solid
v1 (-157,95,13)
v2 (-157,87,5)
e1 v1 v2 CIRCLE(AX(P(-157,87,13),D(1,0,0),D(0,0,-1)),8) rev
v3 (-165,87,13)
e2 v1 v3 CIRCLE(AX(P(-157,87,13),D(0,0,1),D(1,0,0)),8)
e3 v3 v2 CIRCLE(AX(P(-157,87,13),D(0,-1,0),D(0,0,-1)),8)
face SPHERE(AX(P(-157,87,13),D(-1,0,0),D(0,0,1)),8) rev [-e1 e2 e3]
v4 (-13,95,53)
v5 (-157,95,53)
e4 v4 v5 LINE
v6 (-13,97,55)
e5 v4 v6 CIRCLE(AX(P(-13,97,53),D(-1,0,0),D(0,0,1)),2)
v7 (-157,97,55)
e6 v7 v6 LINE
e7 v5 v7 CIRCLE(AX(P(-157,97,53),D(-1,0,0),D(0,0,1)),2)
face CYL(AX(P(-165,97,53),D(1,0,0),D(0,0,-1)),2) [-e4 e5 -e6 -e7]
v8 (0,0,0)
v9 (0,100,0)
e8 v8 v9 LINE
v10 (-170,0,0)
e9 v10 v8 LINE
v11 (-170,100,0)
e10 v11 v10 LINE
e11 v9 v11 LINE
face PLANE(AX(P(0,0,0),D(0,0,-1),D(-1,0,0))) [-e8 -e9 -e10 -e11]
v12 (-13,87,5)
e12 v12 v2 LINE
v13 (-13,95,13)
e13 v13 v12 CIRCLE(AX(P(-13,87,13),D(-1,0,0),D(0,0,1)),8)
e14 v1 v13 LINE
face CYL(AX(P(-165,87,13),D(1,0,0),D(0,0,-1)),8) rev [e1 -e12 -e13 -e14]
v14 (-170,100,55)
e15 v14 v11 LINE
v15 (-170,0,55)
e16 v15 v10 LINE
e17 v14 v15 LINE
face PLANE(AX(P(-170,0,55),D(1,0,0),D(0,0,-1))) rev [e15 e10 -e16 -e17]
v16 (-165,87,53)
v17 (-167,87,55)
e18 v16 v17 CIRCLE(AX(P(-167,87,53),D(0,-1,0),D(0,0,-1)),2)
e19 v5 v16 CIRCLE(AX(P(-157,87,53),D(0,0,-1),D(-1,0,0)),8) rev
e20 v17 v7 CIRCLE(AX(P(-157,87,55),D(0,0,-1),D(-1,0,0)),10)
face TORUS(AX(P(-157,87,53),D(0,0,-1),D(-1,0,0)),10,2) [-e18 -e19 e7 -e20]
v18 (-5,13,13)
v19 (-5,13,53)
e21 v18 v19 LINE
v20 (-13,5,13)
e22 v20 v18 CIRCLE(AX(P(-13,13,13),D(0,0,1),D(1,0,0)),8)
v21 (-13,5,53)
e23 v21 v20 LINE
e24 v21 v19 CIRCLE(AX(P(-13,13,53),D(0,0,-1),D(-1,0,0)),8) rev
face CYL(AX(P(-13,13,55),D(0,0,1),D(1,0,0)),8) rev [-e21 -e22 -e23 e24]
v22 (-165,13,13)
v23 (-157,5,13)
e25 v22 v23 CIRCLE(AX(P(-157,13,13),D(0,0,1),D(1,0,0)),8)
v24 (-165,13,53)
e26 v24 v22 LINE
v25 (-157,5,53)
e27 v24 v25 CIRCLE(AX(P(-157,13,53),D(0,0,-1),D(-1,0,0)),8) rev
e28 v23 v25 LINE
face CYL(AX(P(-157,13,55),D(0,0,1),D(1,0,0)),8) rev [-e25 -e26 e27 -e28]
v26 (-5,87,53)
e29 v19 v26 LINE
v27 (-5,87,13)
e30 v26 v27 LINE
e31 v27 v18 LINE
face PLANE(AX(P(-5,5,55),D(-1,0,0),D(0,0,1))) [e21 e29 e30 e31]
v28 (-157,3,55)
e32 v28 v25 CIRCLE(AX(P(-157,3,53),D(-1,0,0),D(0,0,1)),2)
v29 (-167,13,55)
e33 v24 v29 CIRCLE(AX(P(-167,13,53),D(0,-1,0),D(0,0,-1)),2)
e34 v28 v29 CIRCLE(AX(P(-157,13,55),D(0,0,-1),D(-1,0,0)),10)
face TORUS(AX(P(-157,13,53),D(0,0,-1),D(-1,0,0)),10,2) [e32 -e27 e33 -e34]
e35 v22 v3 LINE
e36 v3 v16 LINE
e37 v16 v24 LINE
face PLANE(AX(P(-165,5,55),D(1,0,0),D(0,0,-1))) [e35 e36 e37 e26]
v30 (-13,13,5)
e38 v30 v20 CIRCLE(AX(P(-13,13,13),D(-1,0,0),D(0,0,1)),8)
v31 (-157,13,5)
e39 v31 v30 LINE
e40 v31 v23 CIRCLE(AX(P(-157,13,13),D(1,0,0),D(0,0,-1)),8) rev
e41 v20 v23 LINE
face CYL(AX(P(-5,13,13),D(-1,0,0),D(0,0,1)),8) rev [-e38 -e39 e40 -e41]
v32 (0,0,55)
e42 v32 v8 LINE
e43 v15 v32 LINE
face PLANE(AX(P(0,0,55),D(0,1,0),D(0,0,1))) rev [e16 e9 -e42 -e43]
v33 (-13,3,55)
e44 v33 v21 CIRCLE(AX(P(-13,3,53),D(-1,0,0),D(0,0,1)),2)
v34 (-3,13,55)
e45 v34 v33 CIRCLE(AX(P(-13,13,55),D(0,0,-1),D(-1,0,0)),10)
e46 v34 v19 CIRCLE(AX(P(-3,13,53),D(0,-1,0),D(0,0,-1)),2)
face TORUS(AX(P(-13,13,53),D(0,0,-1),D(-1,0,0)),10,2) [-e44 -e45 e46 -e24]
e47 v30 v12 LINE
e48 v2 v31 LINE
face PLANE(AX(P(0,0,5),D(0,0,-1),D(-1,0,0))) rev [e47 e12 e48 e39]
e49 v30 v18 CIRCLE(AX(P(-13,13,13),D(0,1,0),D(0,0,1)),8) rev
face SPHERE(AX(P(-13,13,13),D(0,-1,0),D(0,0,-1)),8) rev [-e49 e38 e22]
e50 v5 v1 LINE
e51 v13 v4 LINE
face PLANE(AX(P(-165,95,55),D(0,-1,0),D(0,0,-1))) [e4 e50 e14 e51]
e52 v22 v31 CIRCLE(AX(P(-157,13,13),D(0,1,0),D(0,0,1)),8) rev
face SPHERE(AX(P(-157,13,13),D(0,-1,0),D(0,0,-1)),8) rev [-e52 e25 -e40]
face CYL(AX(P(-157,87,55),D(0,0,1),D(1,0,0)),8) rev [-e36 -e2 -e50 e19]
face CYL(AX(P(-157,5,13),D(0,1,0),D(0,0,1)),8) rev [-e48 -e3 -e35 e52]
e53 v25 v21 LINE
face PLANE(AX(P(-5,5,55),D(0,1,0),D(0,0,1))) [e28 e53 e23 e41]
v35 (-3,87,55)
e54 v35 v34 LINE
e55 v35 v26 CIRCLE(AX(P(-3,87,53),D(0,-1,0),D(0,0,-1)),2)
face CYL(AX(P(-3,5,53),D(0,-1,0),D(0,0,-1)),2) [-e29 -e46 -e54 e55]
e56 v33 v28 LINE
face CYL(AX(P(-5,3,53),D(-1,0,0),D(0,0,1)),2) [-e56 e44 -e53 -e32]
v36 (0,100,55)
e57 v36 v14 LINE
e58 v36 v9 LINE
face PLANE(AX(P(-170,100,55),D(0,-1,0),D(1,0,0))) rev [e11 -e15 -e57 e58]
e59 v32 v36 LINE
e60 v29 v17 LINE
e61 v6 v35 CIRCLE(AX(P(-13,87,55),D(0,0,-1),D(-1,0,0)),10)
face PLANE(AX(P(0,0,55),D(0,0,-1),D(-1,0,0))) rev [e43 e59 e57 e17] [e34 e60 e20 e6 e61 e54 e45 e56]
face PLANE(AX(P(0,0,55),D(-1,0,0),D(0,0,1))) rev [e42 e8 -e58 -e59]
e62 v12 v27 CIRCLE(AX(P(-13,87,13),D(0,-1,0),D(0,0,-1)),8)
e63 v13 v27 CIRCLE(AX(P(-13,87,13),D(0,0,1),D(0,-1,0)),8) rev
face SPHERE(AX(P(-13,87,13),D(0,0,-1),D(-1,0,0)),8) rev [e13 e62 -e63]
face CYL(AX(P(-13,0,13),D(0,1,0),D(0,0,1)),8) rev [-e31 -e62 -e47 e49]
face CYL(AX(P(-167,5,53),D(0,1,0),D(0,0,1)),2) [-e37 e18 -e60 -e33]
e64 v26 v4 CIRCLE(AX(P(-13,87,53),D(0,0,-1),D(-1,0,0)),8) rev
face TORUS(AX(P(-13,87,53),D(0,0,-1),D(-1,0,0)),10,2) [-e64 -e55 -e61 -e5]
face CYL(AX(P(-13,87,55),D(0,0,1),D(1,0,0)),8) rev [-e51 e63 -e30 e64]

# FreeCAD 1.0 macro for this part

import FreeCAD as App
import Part
import Sketcher

V = App.Vector
Q = App.Units.Quantity


def edges_at(feature, points):
    """Names of the edges that pass closest to the given points."""
    edges = feature.Shape.Edges
    near = lambda p: min(range(len(edges)), key=lambda i: edges[i].distToShape(Part.Vertex(*p))[0])
    return sorted({f"Edge{near(p) + 1}" for p in points})


def add_polygon(sketch, points):
    """Adds a closed chain of lines whose ends are joined by coincident constraints."""
    first, n = sketch.GeometryCount, len(points)
    for a, b in zip(points, points[1:] + points[:1]):
        sketch.addGeometry(Part.LineSegment(App.Vector(*a, 0), App.Vector(*b, 0)), False)
    for i in range(n):
        sketch.addConstraint(Sketcher.Constraint("Coincident", first + i, 2, first + (i + 1) % n, 1))

doc = App.newDocument("Part")
body = doc.addObject("PartDesign::Body", "Body")

# Sketch on XY plane
sketch1 = doc.addObject("Sketcher::SketchObject", "Sketch")
body.addObject(sketch1)
sketch1.AttachmentSupport = (doc.XY_Plane, [""])
sketch1.MapMode = "FlatFace"
add_polygon(sketch1, [(-165, 5), (-5, 5), (-5, 95), (-165, 95)])  # lines 0-3
sketch1.addConstraint([
    Sketcher.Constraint("Horizontal", 0),
    Sketcher.Constraint("Vertical", 1),
    Sketcher.Constraint("Horizontal", 2),
    Sketcher.Constraint("Vertical", 3),
    Sketcher.Constraint("DistanceX", 0, 1, 0, 2, Q("160 mm")),
    Sketcher.Constraint("DistanceY", 1, 1, 1, 2, Q("90 mm")),
    Sketcher.Constraint("DistanceX", 0, 2, -1, 1, Q("5 mm")),
    Sketcher.Constraint("DistanceY", -1, 1, 0, 2, Q("5 mm")),
])
pad1 = doc.addObject("PartDesign::Pad", "Pad")
body.addObject(pad1)
pad1.Profile = sketch1
pad1.Length = 5

# Sketch on XY plane
sketch2 = doc.addObject("Sketcher::SketchObject", "Sketch001")
body.addObject(sketch2)
sketch2.AttachmentSupport = (doc.XY_Plane, [""])
sketch2.MapMode = "FlatFace"
add_polygon(sketch2, [(-170, 0), (0, 0), (0, 100), (-170, 100)])  # lines 0-3
add_polygon(sketch2, [(-5, 95), (-5, 5), (-165, 5), (-165, 95)])  # lines 4-7
sketch2.addConstraint([
    Sketcher.Constraint("Horizontal", 0),
    Sketcher.Constraint("Vertical", 1),
    Sketcher.Constraint("Horizontal", 2),
    Sketcher.Constraint("Vertical", 3),
    Sketcher.Constraint("Vertical", 4),
    Sketcher.Constraint("Horizontal", 5),
    Sketcher.Constraint("Vertical", 6),
    Sketcher.Constraint("Horizontal", 7),
    Sketcher.Constraint("Coincident", 0, 2, -1, 1),
    Sketcher.Constraint("DistanceX", 0, 1, 0, 2, Q("170 mm")),
    Sketcher.Constraint("DistanceX", 5, 2, 5, 1, Q("160 mm")),
    Sketcher.Constraint("DistanceY", 1, 1, 1, 2, Q("100 mm")),
    Sketcher.Constraint("DistanceY", 4, 2, 4, 1, Q("90 mm")),
    Sketcher.Constraint("DistanceX", 4, 2, -1, 1, Q("5 mm")),
    Sketcher.Constraint("DistanceY", -1, 1, 4, 2, Q("5 mm")),
])
pad2 = doc.addObject("PartDesign::Pad", "Pad001")
body.addObject(pad2)
pad2.Profile = sketch2
pad2.Length = 55
doc.recompute()

fillet = doc.addObject("PartDesign::Fillet", "Fillet")
body.addObject(fillet)
fillet.Base = (pad2, edges_at(pad2, [
    (-165, 50, 5),
    (-5, 95, 30),
    (-165, 95, 30),
    (-165, 5, 30),
    (-5, 5, 30),
    (-85, 5, 5),
    (-5, 50, 5),
    (-85, 95, 5),
]))
fillet.Radius = 8
doc.recompute()

fillet2 = doc.addObject("PartDesign::Fillet", "Fillet001")
body.addObject(fillet2)
fillet2.Base = (fillet, edges_at(fillet, [
    (-5, 50, 55),
    (-85, 95, 55),
    (-85, 5, 55),
    (-165, 50, 55),
    (-7.343, 92.657, 55),
    (-7.343, 7.343, 55),
    (-162.657, 92.657, 55),
    (-162.657, 7.343, 55),
]))
fillet2.Radius = 2

doc.recompute()
